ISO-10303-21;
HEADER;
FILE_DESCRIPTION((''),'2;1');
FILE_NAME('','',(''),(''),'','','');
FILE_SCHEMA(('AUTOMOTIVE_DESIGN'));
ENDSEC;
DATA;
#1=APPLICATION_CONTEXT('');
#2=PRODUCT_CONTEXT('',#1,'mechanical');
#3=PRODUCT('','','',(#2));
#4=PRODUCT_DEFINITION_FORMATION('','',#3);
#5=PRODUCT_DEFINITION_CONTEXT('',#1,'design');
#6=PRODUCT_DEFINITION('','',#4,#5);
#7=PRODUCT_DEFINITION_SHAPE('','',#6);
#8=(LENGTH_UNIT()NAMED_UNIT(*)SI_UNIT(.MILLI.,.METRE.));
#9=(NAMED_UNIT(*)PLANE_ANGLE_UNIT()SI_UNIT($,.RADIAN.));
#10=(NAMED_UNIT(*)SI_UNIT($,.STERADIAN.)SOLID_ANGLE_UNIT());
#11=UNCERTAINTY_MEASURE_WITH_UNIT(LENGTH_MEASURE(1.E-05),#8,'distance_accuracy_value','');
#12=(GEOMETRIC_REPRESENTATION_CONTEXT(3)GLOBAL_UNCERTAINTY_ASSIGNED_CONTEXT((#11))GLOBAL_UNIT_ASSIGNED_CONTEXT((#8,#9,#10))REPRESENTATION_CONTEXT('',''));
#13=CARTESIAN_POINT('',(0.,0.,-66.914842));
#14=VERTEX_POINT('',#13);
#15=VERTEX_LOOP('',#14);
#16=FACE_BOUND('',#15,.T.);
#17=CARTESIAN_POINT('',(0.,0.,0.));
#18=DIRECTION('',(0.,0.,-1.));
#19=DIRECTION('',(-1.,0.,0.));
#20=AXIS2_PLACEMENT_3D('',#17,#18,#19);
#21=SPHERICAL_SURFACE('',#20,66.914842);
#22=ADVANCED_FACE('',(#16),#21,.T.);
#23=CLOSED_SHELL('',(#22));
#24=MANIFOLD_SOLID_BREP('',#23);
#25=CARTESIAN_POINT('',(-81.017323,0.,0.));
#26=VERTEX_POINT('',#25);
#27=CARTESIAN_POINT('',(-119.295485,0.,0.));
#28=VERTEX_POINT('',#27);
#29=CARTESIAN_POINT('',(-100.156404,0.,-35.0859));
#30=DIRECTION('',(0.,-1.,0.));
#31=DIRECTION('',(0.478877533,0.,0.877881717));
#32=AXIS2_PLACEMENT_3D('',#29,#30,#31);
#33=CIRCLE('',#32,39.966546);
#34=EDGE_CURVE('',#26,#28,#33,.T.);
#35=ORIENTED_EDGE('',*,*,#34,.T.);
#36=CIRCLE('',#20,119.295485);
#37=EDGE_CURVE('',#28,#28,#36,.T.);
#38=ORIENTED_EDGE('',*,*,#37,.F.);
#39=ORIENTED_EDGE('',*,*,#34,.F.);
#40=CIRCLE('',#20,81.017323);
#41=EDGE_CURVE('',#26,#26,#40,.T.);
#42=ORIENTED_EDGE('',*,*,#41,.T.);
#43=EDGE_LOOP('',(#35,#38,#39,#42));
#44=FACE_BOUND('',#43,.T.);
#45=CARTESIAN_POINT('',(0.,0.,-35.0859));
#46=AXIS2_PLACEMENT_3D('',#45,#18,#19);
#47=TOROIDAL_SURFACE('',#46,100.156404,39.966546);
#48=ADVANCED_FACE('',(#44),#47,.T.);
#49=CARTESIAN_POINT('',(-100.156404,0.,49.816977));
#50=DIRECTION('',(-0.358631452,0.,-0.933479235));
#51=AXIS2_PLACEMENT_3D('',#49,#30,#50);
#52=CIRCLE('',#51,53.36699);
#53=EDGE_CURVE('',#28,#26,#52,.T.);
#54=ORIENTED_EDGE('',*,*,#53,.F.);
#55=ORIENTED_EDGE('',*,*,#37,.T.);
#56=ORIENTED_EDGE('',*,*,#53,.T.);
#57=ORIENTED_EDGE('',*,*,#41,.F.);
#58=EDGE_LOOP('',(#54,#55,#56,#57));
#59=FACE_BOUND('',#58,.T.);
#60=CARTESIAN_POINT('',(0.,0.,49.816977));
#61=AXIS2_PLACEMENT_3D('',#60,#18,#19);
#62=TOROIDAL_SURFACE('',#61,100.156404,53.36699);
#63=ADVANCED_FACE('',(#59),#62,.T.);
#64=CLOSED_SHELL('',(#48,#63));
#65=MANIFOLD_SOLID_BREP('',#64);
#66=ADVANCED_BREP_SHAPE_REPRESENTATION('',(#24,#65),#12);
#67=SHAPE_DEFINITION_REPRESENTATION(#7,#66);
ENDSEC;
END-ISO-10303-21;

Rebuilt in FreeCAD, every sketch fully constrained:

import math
import FreeCAD as App
import Part
import Sketcher

V = App.Vector

doc = App.newDocument("Part")
body = doc.addObject("PartDesign::Body", "Body")

sketch1 = body.newObject("Sketcher::SketchObject", "Sketch")
sketch1.AttachmentSupport = (doc.getObject("XZ_Plane"), [""])
sketch1.MapMode = "FlatFace"
sketch1.addGeometry([
    Part.LineSegment(V(0, -67, 0), V(0, 67, 0)),
    Part.ArcOfCircle(Part.Circle(V(0, 0, 0), V(0, 0, 1), 67), math.radians(90), math.radians(270)),
], False)
sketch1.addConstraint([
    Sketcher.Constraint("Coincident", 0, 1, 1, 2),
    Sketcher.Constraint("Coincident", 1, 1, 0, 2),
    Sketcher.Constraint("Vertical", 0),
    Sketcher.Constraint("Coincident", 1, 3, -1, 1),
    Sketcher.Constraint("PointOnObject", 0, 1, -2),
    Sketcher.Constraint("Radius", 1, 66.914842),
])
revolution = body.newObject("PartDesign::Revolution", "Revolution")
revolution.Profile = sketch1
revolution.ReferenceAxis = (sketch1, ["V_Axis"])
revolution.Angle = 360
body2 = doc.addObject("PartDesign::Body", "Body001")

sketch2 = body2.newObject("Sketcher::SketchObject", "Sketch001")
sketch2.AttachmentSupport = (doc.getObject("XZ_Plane001"), [""])
sketch2.MapMode = "FlatFace"
sketch2.addGeometry([
    Part.ArcOfCircle(Part.Circle(V(-100, -35, 0), V(0, 0, 1), 40), math.radians(61), math.radians(119)),
    Part.ArcOfCircle(Part.Circle(V(-100, 50, 0), V(0, 0, 1), 53), math.radians(-111), math.radians(-69)),
], False)
sketch2.addConstraint([
    Sketcher.Constraint("Coincident", 0, 1, 1, 2),
    Sketcher.Constraint("Coincident", 1, 1, 0, 2),
    Sketcher.Constraint("PointOnObject", 0, 1, -1),
    Sketcher.Constraint("PointOnObject", 1, 1, -1),
    Sketcher.Constraint("Radius", 1, 53.36699),
    Sketcher.Constraint("Radius", 0, 39.966546),
    Sketcher.Constraint("DistanceY", 0, 3, -1, 1, 35.0859),
    Sketcher.Constraint("DistanceX", 0, 3, -1, 1, 100.156404),
])
revolution2 = body2.newObject("PartDesign::Revolution", "Revolution001")
revolution2.Profile = sketch2
revolution2.ReferenceAxis = (sketch2, ["V_Axis"])
revolution2.Angle = 360

doc.recompute()
